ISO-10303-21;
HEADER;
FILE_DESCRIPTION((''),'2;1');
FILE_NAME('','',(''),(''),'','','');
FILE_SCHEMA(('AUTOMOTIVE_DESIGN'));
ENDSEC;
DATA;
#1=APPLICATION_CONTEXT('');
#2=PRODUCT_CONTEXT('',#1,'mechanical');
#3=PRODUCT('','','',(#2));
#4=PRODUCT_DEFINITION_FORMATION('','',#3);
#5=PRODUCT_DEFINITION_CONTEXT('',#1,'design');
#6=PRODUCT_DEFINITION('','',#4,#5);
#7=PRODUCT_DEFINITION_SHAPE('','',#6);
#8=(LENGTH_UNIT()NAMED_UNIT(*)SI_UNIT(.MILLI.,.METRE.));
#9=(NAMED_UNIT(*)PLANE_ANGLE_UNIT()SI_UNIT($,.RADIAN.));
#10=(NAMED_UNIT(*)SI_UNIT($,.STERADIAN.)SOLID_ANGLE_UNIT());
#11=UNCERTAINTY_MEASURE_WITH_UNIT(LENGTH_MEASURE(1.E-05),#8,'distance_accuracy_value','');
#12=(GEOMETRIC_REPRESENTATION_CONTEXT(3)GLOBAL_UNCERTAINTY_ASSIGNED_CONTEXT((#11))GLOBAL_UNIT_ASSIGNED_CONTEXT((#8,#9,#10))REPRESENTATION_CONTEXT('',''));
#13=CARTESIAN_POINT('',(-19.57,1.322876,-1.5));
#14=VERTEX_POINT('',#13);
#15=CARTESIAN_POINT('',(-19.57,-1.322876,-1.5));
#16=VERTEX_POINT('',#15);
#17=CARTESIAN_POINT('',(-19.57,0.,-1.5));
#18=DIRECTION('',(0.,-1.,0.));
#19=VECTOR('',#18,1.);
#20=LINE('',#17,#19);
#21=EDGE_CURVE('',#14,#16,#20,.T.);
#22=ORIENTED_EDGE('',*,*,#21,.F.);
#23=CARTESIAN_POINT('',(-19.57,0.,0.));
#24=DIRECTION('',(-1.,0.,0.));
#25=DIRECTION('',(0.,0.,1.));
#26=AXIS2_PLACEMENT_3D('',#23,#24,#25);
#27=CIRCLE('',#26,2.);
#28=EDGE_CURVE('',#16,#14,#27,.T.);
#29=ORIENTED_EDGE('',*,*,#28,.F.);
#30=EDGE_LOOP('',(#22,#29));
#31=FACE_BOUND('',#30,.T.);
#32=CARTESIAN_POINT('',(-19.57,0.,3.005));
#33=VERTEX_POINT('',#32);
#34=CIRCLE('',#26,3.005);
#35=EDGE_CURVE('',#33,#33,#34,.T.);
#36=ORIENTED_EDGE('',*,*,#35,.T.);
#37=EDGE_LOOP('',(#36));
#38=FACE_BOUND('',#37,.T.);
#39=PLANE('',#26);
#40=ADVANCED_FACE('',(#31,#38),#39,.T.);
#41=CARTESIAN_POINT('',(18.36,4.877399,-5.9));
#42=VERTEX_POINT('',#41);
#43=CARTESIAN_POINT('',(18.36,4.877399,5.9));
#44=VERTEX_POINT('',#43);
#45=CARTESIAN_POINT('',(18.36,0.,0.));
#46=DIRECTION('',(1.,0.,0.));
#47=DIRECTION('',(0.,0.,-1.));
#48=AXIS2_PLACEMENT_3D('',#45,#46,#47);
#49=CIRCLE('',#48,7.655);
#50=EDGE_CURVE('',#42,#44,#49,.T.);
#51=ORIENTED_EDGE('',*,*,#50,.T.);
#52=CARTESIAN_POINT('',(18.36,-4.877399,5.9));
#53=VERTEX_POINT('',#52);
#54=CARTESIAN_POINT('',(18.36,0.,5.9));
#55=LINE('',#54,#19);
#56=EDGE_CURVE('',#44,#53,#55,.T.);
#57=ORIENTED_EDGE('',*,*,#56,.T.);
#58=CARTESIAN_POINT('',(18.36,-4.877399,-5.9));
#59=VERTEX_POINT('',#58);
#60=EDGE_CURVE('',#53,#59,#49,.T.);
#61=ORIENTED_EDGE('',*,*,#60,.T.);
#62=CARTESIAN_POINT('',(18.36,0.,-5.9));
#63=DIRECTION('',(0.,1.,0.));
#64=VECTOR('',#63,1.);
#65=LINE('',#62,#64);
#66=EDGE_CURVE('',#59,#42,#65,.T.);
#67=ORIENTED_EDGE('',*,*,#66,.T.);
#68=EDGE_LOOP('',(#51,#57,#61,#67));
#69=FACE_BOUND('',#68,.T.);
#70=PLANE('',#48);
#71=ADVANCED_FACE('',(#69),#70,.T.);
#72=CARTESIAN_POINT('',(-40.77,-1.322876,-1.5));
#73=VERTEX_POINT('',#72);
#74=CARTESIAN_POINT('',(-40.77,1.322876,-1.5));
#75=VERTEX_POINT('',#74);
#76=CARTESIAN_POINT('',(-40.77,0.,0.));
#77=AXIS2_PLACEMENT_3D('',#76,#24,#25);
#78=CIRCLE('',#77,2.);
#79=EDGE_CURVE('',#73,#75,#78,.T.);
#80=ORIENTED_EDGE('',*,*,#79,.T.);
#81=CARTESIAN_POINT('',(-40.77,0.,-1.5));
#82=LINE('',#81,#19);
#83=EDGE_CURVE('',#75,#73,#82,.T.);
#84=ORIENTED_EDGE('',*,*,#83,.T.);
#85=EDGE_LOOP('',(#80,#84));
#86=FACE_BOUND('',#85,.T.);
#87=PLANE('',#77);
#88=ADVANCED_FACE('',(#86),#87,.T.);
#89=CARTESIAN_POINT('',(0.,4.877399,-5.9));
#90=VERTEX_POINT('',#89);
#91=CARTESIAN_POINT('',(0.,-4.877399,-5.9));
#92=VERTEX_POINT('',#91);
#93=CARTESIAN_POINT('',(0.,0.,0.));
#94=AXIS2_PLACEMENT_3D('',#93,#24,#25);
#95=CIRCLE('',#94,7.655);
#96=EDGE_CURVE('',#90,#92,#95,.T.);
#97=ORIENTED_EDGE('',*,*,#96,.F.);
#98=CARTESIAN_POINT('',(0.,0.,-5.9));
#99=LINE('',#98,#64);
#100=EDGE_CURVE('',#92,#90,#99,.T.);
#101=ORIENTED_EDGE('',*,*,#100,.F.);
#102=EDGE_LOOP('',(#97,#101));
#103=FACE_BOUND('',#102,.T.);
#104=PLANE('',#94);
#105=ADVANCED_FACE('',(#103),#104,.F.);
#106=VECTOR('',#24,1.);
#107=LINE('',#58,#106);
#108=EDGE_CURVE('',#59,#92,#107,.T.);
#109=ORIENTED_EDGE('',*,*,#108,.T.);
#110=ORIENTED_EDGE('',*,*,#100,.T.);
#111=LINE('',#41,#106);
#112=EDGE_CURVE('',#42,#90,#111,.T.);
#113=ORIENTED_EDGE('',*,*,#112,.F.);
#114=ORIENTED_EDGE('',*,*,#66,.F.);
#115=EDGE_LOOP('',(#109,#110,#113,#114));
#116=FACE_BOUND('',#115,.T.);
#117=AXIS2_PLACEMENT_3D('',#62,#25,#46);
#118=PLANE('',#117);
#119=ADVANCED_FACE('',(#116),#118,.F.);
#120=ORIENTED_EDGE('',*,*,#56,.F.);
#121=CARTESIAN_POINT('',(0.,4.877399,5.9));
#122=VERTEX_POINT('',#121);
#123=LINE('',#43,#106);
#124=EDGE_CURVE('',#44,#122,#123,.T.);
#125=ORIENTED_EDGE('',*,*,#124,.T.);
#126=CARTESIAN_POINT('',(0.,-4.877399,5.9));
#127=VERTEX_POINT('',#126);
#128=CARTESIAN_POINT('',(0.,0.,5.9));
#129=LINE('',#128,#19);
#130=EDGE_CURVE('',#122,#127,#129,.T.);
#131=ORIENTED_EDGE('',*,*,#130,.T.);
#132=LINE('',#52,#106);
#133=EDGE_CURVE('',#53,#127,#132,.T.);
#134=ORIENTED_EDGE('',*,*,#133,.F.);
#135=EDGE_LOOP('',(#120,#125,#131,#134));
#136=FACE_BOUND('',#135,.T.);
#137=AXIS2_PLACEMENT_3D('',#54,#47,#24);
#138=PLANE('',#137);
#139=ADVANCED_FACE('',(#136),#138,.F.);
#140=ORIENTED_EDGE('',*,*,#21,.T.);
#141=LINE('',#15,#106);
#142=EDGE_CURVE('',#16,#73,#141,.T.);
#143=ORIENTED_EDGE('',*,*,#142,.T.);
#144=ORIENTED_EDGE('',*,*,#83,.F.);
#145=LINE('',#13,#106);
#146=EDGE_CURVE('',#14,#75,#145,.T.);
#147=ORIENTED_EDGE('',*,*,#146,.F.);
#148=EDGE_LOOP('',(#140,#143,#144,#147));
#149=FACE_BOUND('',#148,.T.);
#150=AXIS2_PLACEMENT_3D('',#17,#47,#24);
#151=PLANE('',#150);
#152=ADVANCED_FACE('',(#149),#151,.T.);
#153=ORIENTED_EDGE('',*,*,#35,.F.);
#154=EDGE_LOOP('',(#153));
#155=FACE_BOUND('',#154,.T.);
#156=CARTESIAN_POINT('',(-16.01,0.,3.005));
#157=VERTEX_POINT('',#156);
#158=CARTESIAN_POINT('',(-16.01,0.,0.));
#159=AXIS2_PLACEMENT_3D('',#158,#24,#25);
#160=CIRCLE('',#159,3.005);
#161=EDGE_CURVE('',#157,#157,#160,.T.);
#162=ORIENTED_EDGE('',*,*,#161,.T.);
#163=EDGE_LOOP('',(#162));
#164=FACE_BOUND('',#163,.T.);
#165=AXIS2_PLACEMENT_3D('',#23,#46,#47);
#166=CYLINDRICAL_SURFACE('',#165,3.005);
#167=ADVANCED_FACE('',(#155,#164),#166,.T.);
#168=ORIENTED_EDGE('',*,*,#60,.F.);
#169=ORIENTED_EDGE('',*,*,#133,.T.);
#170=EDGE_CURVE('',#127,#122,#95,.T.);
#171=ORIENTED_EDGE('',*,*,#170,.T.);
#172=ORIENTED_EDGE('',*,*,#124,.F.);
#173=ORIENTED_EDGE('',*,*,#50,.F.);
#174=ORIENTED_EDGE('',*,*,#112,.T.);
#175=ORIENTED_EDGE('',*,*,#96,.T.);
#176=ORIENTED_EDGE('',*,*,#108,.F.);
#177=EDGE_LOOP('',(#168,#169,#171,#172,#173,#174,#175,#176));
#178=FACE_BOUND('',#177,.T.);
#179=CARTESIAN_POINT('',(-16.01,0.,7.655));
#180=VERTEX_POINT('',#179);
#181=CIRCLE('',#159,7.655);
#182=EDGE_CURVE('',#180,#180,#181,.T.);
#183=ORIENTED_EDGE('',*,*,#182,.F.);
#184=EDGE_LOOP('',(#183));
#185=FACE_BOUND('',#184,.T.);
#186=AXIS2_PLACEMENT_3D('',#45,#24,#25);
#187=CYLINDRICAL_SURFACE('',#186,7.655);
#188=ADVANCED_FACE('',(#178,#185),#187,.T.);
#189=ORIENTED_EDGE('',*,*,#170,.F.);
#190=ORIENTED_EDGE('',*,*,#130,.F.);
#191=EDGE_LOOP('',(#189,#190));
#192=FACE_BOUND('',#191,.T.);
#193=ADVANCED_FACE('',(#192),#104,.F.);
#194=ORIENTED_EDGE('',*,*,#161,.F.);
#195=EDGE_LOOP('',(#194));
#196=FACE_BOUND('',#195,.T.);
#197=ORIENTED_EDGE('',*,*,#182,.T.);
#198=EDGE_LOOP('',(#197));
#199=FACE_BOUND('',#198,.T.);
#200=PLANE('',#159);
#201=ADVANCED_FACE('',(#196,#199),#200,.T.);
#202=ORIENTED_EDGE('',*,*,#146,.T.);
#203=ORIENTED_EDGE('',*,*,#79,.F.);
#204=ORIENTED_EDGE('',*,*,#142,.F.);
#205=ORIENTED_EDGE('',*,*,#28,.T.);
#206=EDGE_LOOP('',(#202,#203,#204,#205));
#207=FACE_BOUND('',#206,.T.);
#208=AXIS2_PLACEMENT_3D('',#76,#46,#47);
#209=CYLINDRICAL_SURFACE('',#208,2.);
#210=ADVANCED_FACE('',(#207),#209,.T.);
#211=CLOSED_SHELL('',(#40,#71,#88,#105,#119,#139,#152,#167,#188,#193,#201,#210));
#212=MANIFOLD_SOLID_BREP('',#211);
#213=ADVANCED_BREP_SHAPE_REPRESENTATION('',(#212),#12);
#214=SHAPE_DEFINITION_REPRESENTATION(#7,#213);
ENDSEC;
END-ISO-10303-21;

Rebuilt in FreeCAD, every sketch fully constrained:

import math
import FreeCAD as App
import Part
import Sketcher

V = App.Vector
Q = App.Units.Quantity

doc = App.newDocument("Part")
body = doc.addObject("PartDesign::Body", "Body")

sketch1 = body.newObject("Sketcher::SketchObject", "Sketch")
sketch1.AttachmentSupport = (doc.getObject("YZ_Plane"), [""])
sketch1.MapMode = "FlatFace"
sketch1.addGeometry(Part.ArcOfCircle(Part.Circle(V(0, 0, 0), V(0, 0, 1), 8), math.radians(-50), math.radians(50)), False)
sketch1.addGeometry(Part.LineSegment(V(5, 6, 0), V(-5, 6, 0)), False)
sketch1.addGeometry(Part.ArcOfCircle(Part.Circle(V(0, 0, 0), V(0, 0, 1), 8), math.radians(130), math.radians(230)), False)
sketch1.addGeometry(Part.LineSegment(V(-5, -6, 0), V(5, -6, 0)), False)
sketch1.addConstraint(Sketcher.Constraint("Coincident", 0, 2, 1, 1))
sketch1.addConstraint(Sketcher.Constraint("Coincident", 1, 2, 2, 1))
sketch1.addConstraint(Sketcher.Constraint("Coincident", 2, 2, 3, 1))
sketch1.addConstraint(Sketcher.Constraint("Coincident", 3, 2, 0, 1))
sketch1.addConstraint(Sketcher.Constraint("Horizontal", 1))
sketch1.addConstraint(Sketcher.Constraint("Horizontal", 3))
sketch1.addConstraint(Sketcher.Constraint("Coincident", 0, 3, -1, 1))
sketch1.addConstraint(Sketcher.Constraint("Coincident", 2, 3, -1, 1))
sketch1.addConstraint(Sketcher.Constraint("Equal", 0, 2))
sketch1.addConstraint(Sketcher.Constraint("Vertical", 1, 2, 2, 2))
sketch1.addConstraint(Sketcher.Constraint("Radius", 0, Q("7.655 mm")))
sketch1.addConstraint(Sketcher.Constraint("DistanceY", -1, 1, 0, 2, Q("5.9 mm")))
pad1 = body.newObject("PartDesign::Pad", "Pad")
pad1.Profile = sketch1
pad1.Length = 18.36

sketch2 = body.newObject("Sketcher::SketchObject", "Sketch001")
sketch2.AttachmentSupport = (doc.getObject("YZ_Plane"), [""])
sketch2.MapMode = "FlatFace"
sketch2.AttachmentOffset = App.Placement(V(0, 0, -16.01), App.Rotation())
sketch2.addGeometry(Part.Circle(V(0, 0, 0), V(0, 0, 1), 8), False)
sketch2.addConstraint(Sketcher.Constraint("Coincident", 0, 3, -1, 1))
sketch2.addConstraint(Sketcher.Constraint("Diameter", 0, Q("15.31 mm")))
pad2 = body.newObject("PartDesign::Pad", "Pad001")
pad2.Profile = sketch2
pad2.Length = 16.01

sketch3 = body.newObject("Sketcher::SketchObject", "Sketch002")
sketch3.AttachmentSupport = (doc.getObject("YZ_Plane"), [""])
sketch3.MapMode = "FlatFace"
sketch3.AttachmentOffset = App.Placement(V(0, 0, -16.01), App.Rotation())
sketch3.addGeometry(Part.Circle(V(0, 0, 0), V(0, 0, 1), 3), False)
sketch3.addConstraint(Sketcher.Constraint("Coincident", 0, 3, -1, 1))
sketch3.addConstraint(Sketcher.Constraint("Diameter", 0, Q("6.01 mm")))
pad3 = body.newObject("PartDesign::Pad", "Pad002")
pad3.Profile = sketch3
pad3.Length = 3.56
pad3.Reversed = True

sketch4 = body.newObject("Sketcher::SketchObject", "Sketch003")
sketch4.AttachmentSupport = (doc.getObject("YZ_Plane"), [""])
sketch4.MapMode = "FlatFace"
sketch4.AttachmentOffset = App.Placement(V(0, 0, -19.57), App.Rotation())
sketch4.addGeometry(Part.Circle(V(0, 0, 0), V(0, 0, 1), 2), False)
sketch4.addConstraint(Sketcher.Constraint("Coincident", 0, 3, -1, 1))
sketch4.addConstraint(Sketcher.Constraint("Diameter", 0, Q("4 mm")))
pad4 = body.newObject("PartDesign::Pad", "Pad003")
pad4.Profile = sketch4
pad4.Length = 21.2
pad4.Reversed = True

sketch5 = body.newObject("Sketcher::SketchObject", "Sketch004")
sketch5.AttachmentSupport = (doc.getObject("YZ_Plane"), [""])
sketch5.MapMode = "FlatFace"
sketch5.AttachmentOffset = App.Placement(V(0, 0, -19.57), App.Rotation())
sketch5.addGeometry(Part.LineSegment(V(-1.3, -1.5, 0), V(1.3, -1.5, 0)), False)
sketch5.addGeometry(Part.ArcOfCircle(Part.Circle(V(0, 0, 0), V(0, 0, 1), 2), math.radians(-131), math.radians(-49)), False)
sketch5.addConstraint(Sketcher.Constraint("Coincident", 0, 1, 1, 1))
sketch5.addConstraint(Sketcher.Constraint("Coincident", 1, 2, 0, 2))
sketch5.addConstraint(Sketcher.Constraint("Horizontal", 0))
sketch5.addConstraint(Sketcher.Constraint("Coincident", 1, 3, -1, 1))
sketch5.addConstraint(Sketcher.Constraint("Radius", 1, Q("2 mm")))
sketch5.addConstraint(Sketcher.Constraint("DistanceY", 0, 1, -1, 1, Q("1.5 mm")))
pocket1 = body.newObject("PartDesign::Pocket", "Pocket")
pocket1.Profile = sketch5
pocket1.Length = 21.2

doc.recompute()
